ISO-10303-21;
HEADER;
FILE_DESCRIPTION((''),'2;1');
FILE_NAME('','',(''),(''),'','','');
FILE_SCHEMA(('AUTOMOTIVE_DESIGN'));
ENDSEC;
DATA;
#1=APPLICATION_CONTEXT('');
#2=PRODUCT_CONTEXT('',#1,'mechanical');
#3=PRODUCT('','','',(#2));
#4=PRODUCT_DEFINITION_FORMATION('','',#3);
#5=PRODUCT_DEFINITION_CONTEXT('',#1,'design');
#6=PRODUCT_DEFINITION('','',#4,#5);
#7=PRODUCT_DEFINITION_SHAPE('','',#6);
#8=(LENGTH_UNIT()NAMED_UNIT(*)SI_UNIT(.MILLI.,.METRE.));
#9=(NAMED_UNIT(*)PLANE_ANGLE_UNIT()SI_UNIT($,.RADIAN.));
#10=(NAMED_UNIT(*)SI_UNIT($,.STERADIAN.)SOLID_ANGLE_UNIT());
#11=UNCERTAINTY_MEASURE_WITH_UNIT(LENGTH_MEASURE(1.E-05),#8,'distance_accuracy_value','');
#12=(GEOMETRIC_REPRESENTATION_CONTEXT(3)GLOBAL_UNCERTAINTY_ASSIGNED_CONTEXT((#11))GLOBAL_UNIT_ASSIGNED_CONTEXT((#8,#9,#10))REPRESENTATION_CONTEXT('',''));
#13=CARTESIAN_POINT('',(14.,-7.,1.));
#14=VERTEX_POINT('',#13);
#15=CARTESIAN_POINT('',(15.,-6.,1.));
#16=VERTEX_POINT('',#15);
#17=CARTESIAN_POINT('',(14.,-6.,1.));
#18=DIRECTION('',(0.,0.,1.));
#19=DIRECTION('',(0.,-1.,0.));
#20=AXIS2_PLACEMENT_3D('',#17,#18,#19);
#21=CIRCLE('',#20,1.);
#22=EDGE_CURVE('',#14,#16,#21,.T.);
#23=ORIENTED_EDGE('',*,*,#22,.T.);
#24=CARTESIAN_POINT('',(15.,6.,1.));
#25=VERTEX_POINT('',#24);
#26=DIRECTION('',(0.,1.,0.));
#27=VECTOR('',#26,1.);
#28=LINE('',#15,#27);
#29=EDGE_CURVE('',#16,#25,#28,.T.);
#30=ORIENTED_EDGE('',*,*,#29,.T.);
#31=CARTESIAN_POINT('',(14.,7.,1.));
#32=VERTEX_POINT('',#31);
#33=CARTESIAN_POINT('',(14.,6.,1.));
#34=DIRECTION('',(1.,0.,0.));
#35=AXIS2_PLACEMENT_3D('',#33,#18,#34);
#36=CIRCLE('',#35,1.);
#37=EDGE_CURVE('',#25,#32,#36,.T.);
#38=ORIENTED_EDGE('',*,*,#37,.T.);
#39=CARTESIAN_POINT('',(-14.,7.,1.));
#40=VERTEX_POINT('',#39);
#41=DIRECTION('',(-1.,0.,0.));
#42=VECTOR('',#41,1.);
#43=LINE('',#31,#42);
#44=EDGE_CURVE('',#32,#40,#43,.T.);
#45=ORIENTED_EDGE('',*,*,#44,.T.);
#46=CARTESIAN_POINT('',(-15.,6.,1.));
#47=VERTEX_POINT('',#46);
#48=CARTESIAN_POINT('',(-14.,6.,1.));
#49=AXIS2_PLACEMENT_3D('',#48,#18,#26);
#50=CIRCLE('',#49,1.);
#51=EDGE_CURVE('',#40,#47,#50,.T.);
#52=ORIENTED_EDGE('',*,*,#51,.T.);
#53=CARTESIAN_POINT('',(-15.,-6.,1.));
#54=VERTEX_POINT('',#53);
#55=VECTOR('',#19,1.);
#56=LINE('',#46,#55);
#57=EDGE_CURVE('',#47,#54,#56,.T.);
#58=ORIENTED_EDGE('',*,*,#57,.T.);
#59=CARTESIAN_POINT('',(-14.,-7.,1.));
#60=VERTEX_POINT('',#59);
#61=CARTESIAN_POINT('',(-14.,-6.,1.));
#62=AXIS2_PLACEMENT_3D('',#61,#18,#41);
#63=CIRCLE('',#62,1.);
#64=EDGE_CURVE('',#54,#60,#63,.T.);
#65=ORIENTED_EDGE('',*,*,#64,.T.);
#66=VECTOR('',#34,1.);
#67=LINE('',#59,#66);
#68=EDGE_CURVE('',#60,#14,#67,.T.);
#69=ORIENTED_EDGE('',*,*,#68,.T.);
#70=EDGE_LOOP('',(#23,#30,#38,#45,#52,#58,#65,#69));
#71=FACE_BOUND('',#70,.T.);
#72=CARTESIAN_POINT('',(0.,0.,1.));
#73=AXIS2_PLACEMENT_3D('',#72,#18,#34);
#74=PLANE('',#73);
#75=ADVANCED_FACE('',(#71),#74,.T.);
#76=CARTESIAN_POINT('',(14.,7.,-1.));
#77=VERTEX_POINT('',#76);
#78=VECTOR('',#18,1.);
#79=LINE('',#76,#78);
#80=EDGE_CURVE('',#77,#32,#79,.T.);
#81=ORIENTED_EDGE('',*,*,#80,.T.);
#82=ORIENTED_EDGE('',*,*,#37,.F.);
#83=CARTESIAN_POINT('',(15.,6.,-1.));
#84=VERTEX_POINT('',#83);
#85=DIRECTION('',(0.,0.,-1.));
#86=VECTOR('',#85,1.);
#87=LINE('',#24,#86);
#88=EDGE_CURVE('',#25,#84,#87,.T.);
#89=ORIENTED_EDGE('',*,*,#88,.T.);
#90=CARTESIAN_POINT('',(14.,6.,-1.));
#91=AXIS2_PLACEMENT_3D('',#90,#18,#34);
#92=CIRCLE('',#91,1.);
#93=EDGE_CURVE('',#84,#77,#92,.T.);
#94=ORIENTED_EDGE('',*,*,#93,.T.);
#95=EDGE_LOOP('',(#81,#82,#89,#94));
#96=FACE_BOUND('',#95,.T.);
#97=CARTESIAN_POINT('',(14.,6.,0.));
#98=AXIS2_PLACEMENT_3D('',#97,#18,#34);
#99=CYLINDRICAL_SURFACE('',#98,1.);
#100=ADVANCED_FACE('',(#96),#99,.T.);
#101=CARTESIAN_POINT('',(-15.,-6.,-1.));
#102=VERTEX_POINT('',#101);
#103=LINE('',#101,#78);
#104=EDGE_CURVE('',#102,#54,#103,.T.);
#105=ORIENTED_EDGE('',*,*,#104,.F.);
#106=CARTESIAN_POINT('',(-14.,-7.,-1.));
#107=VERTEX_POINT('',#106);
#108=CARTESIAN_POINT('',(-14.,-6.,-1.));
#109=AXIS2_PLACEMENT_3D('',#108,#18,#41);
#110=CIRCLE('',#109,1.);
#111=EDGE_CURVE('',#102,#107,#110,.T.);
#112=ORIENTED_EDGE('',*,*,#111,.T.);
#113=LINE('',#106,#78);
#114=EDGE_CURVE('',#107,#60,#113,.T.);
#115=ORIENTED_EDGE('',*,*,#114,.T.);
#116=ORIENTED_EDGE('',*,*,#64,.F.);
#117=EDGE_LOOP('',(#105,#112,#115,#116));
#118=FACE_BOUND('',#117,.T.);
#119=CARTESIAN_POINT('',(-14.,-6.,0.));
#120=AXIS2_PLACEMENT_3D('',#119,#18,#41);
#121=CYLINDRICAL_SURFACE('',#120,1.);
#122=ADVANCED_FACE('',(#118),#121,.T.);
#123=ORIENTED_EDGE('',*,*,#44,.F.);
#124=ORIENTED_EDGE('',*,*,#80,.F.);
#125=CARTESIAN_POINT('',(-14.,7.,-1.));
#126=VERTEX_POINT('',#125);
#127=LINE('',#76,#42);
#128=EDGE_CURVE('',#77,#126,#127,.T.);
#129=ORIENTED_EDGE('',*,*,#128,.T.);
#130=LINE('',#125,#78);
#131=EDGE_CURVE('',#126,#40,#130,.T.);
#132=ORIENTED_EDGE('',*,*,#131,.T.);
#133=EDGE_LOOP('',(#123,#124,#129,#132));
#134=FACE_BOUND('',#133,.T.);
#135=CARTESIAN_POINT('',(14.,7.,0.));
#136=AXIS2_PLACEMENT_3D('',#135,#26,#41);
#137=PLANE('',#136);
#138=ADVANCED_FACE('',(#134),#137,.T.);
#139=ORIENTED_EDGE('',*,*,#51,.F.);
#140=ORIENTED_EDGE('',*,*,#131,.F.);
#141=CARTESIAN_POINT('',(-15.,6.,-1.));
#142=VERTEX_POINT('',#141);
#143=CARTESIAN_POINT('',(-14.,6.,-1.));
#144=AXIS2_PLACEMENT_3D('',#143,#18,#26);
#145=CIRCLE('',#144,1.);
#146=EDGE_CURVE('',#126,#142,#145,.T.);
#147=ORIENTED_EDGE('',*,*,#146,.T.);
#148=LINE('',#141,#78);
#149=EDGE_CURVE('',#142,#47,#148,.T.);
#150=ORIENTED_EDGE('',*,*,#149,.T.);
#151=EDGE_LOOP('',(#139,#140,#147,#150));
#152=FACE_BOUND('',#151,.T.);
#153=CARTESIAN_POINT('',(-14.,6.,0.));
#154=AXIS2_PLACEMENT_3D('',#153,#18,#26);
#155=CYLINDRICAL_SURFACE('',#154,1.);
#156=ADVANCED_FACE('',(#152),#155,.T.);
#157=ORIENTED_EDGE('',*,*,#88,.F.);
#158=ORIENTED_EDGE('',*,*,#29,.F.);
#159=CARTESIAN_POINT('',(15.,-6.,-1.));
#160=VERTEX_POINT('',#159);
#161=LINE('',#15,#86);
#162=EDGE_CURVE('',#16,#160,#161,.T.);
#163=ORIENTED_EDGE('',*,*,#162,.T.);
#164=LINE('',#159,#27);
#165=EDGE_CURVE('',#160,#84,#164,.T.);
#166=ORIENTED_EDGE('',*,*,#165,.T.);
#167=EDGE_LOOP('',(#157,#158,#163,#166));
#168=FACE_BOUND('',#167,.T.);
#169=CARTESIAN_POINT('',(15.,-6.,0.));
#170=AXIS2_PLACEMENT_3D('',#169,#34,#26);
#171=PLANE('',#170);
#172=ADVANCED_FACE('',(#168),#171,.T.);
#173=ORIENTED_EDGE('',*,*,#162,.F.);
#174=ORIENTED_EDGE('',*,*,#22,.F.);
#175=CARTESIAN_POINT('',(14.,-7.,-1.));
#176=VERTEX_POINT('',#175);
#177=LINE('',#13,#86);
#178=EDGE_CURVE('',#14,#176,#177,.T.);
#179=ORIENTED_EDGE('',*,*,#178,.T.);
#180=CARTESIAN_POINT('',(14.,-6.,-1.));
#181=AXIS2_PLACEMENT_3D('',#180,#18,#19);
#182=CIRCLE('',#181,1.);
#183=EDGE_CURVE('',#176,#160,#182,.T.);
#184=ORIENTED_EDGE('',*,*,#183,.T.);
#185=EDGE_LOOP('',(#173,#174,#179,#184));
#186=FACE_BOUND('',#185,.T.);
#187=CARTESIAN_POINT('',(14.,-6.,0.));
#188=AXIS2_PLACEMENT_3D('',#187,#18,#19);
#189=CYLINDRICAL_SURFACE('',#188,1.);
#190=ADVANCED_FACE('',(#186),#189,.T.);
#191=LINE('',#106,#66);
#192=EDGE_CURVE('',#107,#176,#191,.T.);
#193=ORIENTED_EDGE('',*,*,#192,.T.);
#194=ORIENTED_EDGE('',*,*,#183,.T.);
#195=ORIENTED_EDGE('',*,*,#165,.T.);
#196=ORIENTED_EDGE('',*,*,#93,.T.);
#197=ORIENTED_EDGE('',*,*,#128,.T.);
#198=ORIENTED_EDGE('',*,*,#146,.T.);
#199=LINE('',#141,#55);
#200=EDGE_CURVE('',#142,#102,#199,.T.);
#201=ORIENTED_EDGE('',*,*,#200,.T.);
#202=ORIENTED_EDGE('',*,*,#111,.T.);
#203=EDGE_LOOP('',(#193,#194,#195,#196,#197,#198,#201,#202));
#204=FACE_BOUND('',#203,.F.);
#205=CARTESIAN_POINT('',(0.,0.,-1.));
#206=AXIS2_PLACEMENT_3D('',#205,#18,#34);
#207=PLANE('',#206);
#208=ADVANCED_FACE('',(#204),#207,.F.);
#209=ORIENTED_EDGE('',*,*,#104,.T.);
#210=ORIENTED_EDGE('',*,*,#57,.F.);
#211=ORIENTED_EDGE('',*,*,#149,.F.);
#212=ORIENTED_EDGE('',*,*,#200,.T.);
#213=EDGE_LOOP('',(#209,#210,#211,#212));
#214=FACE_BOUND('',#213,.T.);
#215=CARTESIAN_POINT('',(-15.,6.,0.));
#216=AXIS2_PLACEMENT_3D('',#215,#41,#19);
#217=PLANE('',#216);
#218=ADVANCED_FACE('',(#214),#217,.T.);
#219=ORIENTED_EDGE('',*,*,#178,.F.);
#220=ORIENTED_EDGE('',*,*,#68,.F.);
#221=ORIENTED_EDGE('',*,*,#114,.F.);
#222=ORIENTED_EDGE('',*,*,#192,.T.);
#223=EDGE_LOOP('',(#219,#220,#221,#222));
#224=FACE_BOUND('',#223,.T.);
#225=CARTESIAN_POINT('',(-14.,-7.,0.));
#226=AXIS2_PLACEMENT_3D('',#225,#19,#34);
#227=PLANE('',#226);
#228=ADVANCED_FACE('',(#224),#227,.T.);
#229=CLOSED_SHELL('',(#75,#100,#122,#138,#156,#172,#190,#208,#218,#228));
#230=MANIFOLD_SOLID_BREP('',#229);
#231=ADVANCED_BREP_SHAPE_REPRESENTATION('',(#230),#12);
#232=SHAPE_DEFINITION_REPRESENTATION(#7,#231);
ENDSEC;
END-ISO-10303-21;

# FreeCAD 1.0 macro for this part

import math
import FreeCAD as App
import Part
import Sketcher

doc = App.newDocument("Part")
body = doc.addObject("PartDesign::Body", "Body")

# Sketch on XY plane
sketch1 = body.newObject("Sketcher::SketchObject", "Sketch")
sketch1.AttachmentSupport = (doc.getObject("XY_Plane"), [""])
sketch1.MapMode = "FlatFace"
sketch1.addGeometry([
    Part.ArcOfCircle(Part.Circle(App.Vector(14, 6, 0), App.Vector(0, 0, 1), 1), math.radians(0), math.radians(90)),  # 0
    Part.LineSegment(App.Vector(14, 7, 0), App.Vector(-14, 7, 0)),  # 1
    Part.ArcOfCircle(Part.Circle(App.Vector(-14, 6, 0), App.Vector(0, 0, 1), 1), math.radians(90), math.radians(180)),  # 2
    Part.LineSegment(App.Vector(-15, 6, 0), App.Vector(-15, -6, 0)),  # 3
    Part.ArcOfCircle(Part.Circle(App.Vector(-14, -6, 0), App.Vector(0, 0, 1), 1), math.radians(180), math.radians(270)),  # 4
    Part.LineSegment(App.Vector(-14, -7, 0), App.Vector(14, -7, 0)),  # 5
    Part.ArcOfCircle(Part.Circle(App.Vector(14, -6, 0), App.Vector(0, 0, 1), 1), math.radians(-90), math.radians(0)),  # 6
    Part.LineSegment(App.Vector(15, -6, 0), App.Vector(15, 6, 0)),  # 7
], False)
sketch1.addConstraint([
    Sketcher.Constraint("Tangent", 0, 2, 1, 1),
    Sketcher.Constraint("Tangent", 1, 2, 2, 1),
    Sketcher.Constraint("Tangent", 2, 2, 3, 1),
    Sketcher.Constraint("Tangent", 3, 2, 4, 1),
    Sketcher.Constraint("Tangent", 4, 2, 5, 1),
    Sketcher.Constraint("Tangent", 5, 2, 6, 1),
    Sketcher.Constraint("Tangent", 6, 2, 7, 1),
    Sketcher.Constraint("Tangent", 7, 2, 0, 1),
    Sketcher.Constraint("Horizontal", 1),
    Sketcher.Constraint("Vertical", 3),
    Sketcher.Constraint("Horizontal", 5),
    Sketcher.Constraint("Vertical", 7),
    Sketcher.Constraint("Equal", 0, 2),
    Sketcher.Constraint("Equal", 2, 4),
    Sketcher.Constraint("Equal", 4, 6),
    Sketcher.Constraint("Symmetric", 0, 3, 4, 3, -1, 1),
    Sketcher.Constraint("Radius", 0, 1.0),
    Sketcher.Constraint("DistanceX", 1, 2, 1, 1, 28.0),
    Sketcher.Constraint("DistanceY", 3, 2, 3, 1, 12.0),
])
pad1 = body.newObject("PartDesign::Pad", "Pad")
pad1.Profile = sketch1
pad1.Length = 2
pad1.Midplane = True

doc.recompute()
